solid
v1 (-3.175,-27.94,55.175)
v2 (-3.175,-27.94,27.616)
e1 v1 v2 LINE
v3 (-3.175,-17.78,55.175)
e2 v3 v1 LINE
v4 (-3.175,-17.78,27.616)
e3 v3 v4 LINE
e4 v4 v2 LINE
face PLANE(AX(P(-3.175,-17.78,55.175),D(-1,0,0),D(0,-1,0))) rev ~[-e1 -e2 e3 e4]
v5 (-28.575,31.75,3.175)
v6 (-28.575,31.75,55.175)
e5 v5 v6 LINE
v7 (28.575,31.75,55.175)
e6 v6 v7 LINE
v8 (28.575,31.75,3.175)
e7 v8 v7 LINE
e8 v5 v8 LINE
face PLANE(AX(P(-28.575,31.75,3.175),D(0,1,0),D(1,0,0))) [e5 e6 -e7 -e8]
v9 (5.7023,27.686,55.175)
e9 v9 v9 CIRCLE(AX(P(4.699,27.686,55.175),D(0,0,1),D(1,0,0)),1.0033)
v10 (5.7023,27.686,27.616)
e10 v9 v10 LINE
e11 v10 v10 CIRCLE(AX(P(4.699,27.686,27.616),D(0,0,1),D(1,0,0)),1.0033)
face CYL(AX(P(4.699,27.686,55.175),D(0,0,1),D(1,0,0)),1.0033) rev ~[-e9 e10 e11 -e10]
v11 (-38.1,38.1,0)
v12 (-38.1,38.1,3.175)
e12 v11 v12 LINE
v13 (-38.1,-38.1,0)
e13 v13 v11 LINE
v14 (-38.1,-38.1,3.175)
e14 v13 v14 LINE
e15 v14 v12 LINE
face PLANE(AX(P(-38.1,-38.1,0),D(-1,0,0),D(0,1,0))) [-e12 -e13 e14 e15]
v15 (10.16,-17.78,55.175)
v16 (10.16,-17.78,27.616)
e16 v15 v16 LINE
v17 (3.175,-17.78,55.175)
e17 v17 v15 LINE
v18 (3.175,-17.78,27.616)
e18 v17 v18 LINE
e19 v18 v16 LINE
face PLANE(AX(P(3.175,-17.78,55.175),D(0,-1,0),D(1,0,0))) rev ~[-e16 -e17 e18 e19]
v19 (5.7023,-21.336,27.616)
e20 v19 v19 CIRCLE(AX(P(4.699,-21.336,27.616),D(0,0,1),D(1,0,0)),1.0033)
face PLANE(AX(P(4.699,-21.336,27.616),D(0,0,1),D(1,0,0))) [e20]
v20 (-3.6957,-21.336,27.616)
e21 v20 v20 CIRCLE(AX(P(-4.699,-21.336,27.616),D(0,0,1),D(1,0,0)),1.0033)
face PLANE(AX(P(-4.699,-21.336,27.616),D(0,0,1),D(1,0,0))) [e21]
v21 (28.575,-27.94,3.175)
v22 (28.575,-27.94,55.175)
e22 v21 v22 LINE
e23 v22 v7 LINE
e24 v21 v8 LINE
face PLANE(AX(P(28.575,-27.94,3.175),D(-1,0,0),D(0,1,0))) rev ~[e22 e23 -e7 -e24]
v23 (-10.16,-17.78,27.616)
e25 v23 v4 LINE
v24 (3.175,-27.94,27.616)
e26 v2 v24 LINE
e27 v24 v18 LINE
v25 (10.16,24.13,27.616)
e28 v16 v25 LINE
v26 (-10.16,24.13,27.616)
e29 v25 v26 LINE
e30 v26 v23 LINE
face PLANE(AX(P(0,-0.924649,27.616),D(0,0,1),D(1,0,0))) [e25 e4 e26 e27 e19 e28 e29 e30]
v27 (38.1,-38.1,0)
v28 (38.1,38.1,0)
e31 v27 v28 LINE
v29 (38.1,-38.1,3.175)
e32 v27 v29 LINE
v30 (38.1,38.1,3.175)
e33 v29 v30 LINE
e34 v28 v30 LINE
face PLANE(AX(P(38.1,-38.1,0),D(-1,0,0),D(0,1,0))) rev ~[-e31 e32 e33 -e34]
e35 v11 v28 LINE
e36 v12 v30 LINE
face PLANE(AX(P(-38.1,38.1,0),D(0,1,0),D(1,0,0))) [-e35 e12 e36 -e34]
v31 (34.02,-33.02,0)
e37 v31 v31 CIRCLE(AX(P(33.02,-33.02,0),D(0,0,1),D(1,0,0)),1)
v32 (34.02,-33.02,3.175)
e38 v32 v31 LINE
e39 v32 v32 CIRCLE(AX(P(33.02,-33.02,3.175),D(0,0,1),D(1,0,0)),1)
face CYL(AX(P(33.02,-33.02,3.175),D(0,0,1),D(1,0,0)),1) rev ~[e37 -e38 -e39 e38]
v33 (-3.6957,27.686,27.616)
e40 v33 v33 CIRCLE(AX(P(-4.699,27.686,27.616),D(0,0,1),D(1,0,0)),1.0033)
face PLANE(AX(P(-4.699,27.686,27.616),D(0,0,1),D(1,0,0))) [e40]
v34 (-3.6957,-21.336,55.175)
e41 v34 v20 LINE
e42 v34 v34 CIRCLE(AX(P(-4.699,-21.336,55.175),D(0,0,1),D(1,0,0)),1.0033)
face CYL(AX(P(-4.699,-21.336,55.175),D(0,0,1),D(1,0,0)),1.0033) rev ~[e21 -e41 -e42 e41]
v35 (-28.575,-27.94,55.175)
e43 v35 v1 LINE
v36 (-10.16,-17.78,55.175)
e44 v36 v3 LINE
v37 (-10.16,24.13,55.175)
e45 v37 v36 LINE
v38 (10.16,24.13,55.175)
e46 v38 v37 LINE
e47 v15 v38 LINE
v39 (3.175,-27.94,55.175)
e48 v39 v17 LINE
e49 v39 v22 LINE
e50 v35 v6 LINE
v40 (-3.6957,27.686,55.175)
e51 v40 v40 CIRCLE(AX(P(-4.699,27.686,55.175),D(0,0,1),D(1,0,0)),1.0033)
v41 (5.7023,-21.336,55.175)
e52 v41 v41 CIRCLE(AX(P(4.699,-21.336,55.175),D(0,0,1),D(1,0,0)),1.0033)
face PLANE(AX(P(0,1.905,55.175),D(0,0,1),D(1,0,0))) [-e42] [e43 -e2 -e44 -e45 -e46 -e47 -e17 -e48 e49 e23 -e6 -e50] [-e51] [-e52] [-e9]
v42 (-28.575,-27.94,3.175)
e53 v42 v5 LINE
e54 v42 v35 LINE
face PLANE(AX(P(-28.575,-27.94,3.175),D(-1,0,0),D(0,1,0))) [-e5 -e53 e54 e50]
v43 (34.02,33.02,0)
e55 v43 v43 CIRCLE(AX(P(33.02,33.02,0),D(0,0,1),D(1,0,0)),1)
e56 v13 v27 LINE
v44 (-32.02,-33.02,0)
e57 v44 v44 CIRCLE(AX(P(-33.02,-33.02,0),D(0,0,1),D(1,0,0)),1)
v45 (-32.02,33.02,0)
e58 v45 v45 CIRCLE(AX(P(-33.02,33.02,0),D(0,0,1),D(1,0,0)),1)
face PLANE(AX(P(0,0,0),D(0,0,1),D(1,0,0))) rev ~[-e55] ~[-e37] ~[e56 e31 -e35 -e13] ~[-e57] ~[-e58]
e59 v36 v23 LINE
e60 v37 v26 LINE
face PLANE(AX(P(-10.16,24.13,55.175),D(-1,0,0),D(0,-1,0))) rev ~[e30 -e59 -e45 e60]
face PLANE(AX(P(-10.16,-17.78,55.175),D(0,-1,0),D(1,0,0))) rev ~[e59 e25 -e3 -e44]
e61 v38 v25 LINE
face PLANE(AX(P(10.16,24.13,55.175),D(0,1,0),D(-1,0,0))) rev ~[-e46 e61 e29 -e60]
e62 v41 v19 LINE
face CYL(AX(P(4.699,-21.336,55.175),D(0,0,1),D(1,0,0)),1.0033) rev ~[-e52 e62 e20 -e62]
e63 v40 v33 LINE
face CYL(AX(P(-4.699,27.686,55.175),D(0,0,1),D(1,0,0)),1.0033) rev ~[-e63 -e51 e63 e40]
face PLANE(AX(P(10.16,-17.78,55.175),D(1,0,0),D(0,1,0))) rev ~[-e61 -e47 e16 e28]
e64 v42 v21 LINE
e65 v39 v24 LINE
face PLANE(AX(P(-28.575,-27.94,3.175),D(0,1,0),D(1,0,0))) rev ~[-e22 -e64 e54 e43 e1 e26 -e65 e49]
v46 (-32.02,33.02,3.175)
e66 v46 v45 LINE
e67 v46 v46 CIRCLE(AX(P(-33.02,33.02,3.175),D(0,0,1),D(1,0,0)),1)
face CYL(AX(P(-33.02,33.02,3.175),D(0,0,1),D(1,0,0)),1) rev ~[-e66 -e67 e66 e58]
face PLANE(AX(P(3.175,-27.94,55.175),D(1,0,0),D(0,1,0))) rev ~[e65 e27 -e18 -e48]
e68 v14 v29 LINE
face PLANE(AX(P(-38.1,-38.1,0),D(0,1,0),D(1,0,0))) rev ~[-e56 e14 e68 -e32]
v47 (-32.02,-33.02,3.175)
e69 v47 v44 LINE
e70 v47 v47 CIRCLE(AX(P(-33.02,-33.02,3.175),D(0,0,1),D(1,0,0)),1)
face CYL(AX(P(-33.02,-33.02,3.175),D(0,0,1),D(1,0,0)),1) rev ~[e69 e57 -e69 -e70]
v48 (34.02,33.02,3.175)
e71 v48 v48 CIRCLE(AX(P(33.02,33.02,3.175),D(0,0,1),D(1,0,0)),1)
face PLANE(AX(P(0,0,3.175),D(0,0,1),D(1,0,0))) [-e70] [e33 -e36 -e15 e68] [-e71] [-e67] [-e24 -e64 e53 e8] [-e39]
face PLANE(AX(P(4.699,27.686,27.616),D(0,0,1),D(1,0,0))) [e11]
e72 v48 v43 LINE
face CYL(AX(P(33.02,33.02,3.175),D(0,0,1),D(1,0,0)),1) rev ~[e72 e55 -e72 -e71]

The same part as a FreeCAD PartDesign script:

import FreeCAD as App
import Part
import Sketcher

V = App.Vector
Q = App.Units.Quantity


def add_polygon(sketch, points):
    """Adds a closed chain of lines whose ends are joined by coincident constraints."""
    first, n = sketch.GeometryCount, len(points)
    for a, b in zip(points, points[1:] + points[:1]):
        sketch.addGeometry(Part.LineSegment(App.Vector(*a, 0), App.Vector(*b, 0)), False)
    for i in range(n):
        sketch.addConstraint(Sketcher.Constraint("Coincident", first + i, 2, first + (i + 1) % n, 1))

doc = App.newDocument("Part")
params = doc.addObject("Spreadsheet::Sheet", "Params")
for row, (alias, value) in enumerate([
    ("sketch1_width", "3 in"),
    ("pad1_length", "0.125 in"),
    ("pocket1_length", "1 in"),
    ("sketch3_width", "2.25 in"),
    ("sketch3_height", "2.35 in"),
    ("pad2_length", "52 mm"),
    ("sketch4_diameter", "0.079 in"),
    ("sketch4_width", "0.8 in"),
    ("sketch4_height", "0.4 in"),
    ("sketch4_width2", "0.25 in"),
    ("sketch4_height2", "1.65 in"),
    ("pocket2_length", "1.085 in"),
], start=1):
    params.set(f"A{row}", alias)
    params.set(f"B{row}", "=" + value)
    params.setAlias(f"B{row}", alias)

body = doc.addObject("PartDesign::Body", "Body")

# Sketch on XY plane
sketch1 = doc.addObject("Sketcher::SketchObject", "Sketch")
body.addObject(sketch1)
sketch1.AttachmentSupport = (doc.XY_Plane, [""])
sketch1.MapMode = "FlatFace"
add_polygon(sketch1, [(-38, 38), (-38, -38), (38, -38), (38, 38)])  # lines 0-3
sketch1.addConstraint([
    Sketcher.Constraint("Vertical", 0),
    Sketcher.Constraint("Horizontal", 1),
    Sketcher.Constraint("Vertical", 2),
    Sketcher.Constraint("Horizontal", 3),
    Sketcher.Constraint("Symmetric", 0, 2, 2, 2, -1, 1),
    Sketcher.Constraint("Equal", 3, 0),
    Sketcher.Constraint("DistanceX", 1, 1, 1, 2, Q("3 in")),
])
sketch1.setExpression("Constraints[10]", "Params.sketch1_width")
pad1 = doc.addObject("PartDesign::Pad", "Pad")
body.addObject(pad1)
pad1.Profile = sketch1
pad1.setExpression("Length", "Params.pad1_length")

# Sketch on XY plane
sketch2 = doc.addObject("Sketcher::SketchObject", "Sketch001")
body.addObject(sketch2)
sketch2.AttachmentSupport = (doc.XY_Plane, [""])
sketch2.MapMode = "FlatFace"
sketch2.AttachmentOffset = App.Placement(V(0, 0, 0.125 * 25.4), App.Rotation())
sketch2.addGeometry([
    Part.Circle(V(-33, 33, 0), V(0, 0, 1), 1),
    Part.Circle(V(-33, -33, 0), V(0, 0, 1), 1),
    Part.Circle(V(33, 33, 0), V(0, 0, 1), 1),
    Part.Circle(V(33, -33, 0), V(0, 0, 1), 1),
], False)
sketch2.addConstraint([
    Sketcher.Constraint("Equal", 0, 1),
    Sketcher.Constraint("Equal", 1, 2),
    Sketcher.Constraint("Equal", 2, 3),
    Sketcher.Constraint("Symmetric", 1, 3, 2, 3, -1, 1),
    Sketcher.Constraint("Symmetric", 0, 3, 3, 3, -1, 1),
    Sketcher.Constraint("Symmetric", 0, 3, 2, 3, -2),
    Sketcher.Constraint("DistanceX", 0, 3, -1, 1, Q("1.3 in")),
    Sketcher.Constraint("DistanceY", -1, 1, 0, 3, Q("1.3 in")),
    Sketcher.Constraint("Diameter", 0, 2.0),
])
pocket1 = doc.addObject("PartDesign::Pocket", "Pocket")
body.addObject(pocket1)
pocket1.Profile = sketch2
pocket1.setExpression("Length", "Params.pocket1_length")

# Sketch on XY plane
sketch3 = doc.addObject("Sketcher::SketchObject", "Sketch002")
body.addObject(sketch3)
sketch3.AttachmentSupport = (doc.XY_Plane, [""])
sketch3.MapMode = "FlatFace"
sketch3.AttachmentOffset = App.Placement(V(0, 0, 0.125 * 25.4), App.Rotation())
add_polygon(sketch3, [(-29, 32), (-29, -28), (29, -28), (29, 32)])  # lines 0-3
sketch3.addConstraint([
    Sketcher.Constraint("Vertical", 0),
    Sketcher.Constraint("Horizontal", 1),
    Sketcher.Constraint("Vertical", 2),
    Sketcher.Constraint("Horizontal", 3),
    Sketcher.Constraint("DistanceX", 1, 1, 1, 2, Q("2.25 in")),
    Sketcher.Constraint("DistanceY", 0, 2, 0, 1, Q("2.35 in")),
    Sketcher.Constraint("DistanceY", 0, 2, -1, 1, Q("1.1 in")),
    Sketcher.Constraint("DistanceX", 0, 2, -1, 1, Q("1.125 in")),
])
sketch3.setExpression("Constraints[8]", "Params.sketch3_width")
sketch3.setExpression("Constraints[9]", "Params.sketch3_height")
pad2 = doc.addObject("PartDesign::Pad", "Pad001")
body.addObject(pad2)
pad2.Profile = sketch3
pad2.setExpression("Length", "Params.pad2_length")

# Sketch on XY plane
sketch4 = doc.addObject("Sketcher::SketchObject", "Sketch003")
body.addObject(sketch4)
sketch4.AttachmentSupport = (doc.XY_Plane, [""])
sketch4.MapMode = "FlatFace"
sketch4.AttachmentOffset = App.Placement(V(0, 0, 55.175), App.Rotation())
add_polygon(sketch4, [(10.2, -17.8), (10.2, 24.1), (-10.2, 24.1), (-10.2, -17.8), (-3.2, -17.8), (-3.2, -27.9), (3.2, -27.9), (3.2, -17.8)])  # lines 0-7
sketch4.addGeometry(Part.Circle(V(-4.7, 27.7, 0), V(0, 0, 1), 1), False)  # 8
sketch4.addGeometry(Part.Circle(V(4.7, 27.7, 0), V(0, 0, 1), 1), False)  # 9
sketch4.addGeometry(Part.Circle(V(-4.7, -21.3, 0), V(0, 0, 1), 1), False)  # 10
sketch4.addGeometry(Part.Circle(V(4.7, -21.3, 0), V(0, 0, 1), 1), False)  # 11
sketch4.addConstraint([
    Sketcher.Constraint("Vertical", 0),
    Sketcher.Constraint("Horizontal", 1),
    Sketcher.Constraint("Vertical", 2),
    Sketcher.Constraint("Horizontal", 3),
    Sketcher.Constraint("Vertical", 4),
    Sketcher.Constraint("Horizontal", 5),
    Sketcher.Constraint("Vertical", 6),
    Sketcher.Constraint("Horizontal", 7),
    Sketcher.Constraint("Equal", 8, 9),
    Sketcher.Constraint("Equal", 9, 10),
    Sketcher.Constraint("Equal", 10, 11),
    Sketcher.Constraint("Symmetric", 8, 3, 9, 3, -2),
    Sketcher.Constraint("Symmetric", 10, 3, 11, 3, -2),
    Sketcher.Constraint("Symmetric", 3, 2, 6, 2, -2),
    Sketcher.Constraint("Vertical", 8, 3, 10, 3),
    Sketcher.Constraint("Equal", 3, 7),
    Sketcher.Constraint("Diameter", 8, Q("0.079 in")),
    Sketcher.Constraint("DistanceX", 1, 2, 1, 1, Q("0.8 in")),
    Sketcher.Constraint("DistanceY", 4, 2, 4, 1, Q("0.4 in")),
    Sketcher.Constraint("DistanceX", 5, 1, 5, 2, Q("0.25 in")),
    Sketcher.Constraint("DistanceY", 0, 1, 0, 2, Q("1.65 in")),
    Sketcher.Constraint("DistanceY", 2, 2, -1, 1, Q("0.7 in")),
    Sketcher.Constraint("DistanceY", -1, 1, 8, 3, Q("1.09 in")),
    Sketcher.Constraint("DistanceY", 10, 3, -1, 1, Q("0.84 in")),
    Sketcher.Constraint("DistanceX", 8, 3, 9, 3, Q("0.37 in")),
])
sketch4.setExpression("Constraints[24]", "Params.sketch4_diameter")
sketch4.setExpression("Constraints[25]", "Params.sketch4_width")
sketch4.setExpression("Constraints[26]", "Params.sketch4_height")
sketch4.setExpression("Constraints[27]", "Params.sketch4_width2")
sketch4.setExpression("Constraints[28]", "Params.sketch4_height2")
pocket2 = doc.addObject("PartDesign::Pocket", "Pocket001")
body.addObject(pocket2)
pocket2.Profile = sketch4
pocket2.setExpression("Length", "Params.pocket2_length")

doc.recompute()
